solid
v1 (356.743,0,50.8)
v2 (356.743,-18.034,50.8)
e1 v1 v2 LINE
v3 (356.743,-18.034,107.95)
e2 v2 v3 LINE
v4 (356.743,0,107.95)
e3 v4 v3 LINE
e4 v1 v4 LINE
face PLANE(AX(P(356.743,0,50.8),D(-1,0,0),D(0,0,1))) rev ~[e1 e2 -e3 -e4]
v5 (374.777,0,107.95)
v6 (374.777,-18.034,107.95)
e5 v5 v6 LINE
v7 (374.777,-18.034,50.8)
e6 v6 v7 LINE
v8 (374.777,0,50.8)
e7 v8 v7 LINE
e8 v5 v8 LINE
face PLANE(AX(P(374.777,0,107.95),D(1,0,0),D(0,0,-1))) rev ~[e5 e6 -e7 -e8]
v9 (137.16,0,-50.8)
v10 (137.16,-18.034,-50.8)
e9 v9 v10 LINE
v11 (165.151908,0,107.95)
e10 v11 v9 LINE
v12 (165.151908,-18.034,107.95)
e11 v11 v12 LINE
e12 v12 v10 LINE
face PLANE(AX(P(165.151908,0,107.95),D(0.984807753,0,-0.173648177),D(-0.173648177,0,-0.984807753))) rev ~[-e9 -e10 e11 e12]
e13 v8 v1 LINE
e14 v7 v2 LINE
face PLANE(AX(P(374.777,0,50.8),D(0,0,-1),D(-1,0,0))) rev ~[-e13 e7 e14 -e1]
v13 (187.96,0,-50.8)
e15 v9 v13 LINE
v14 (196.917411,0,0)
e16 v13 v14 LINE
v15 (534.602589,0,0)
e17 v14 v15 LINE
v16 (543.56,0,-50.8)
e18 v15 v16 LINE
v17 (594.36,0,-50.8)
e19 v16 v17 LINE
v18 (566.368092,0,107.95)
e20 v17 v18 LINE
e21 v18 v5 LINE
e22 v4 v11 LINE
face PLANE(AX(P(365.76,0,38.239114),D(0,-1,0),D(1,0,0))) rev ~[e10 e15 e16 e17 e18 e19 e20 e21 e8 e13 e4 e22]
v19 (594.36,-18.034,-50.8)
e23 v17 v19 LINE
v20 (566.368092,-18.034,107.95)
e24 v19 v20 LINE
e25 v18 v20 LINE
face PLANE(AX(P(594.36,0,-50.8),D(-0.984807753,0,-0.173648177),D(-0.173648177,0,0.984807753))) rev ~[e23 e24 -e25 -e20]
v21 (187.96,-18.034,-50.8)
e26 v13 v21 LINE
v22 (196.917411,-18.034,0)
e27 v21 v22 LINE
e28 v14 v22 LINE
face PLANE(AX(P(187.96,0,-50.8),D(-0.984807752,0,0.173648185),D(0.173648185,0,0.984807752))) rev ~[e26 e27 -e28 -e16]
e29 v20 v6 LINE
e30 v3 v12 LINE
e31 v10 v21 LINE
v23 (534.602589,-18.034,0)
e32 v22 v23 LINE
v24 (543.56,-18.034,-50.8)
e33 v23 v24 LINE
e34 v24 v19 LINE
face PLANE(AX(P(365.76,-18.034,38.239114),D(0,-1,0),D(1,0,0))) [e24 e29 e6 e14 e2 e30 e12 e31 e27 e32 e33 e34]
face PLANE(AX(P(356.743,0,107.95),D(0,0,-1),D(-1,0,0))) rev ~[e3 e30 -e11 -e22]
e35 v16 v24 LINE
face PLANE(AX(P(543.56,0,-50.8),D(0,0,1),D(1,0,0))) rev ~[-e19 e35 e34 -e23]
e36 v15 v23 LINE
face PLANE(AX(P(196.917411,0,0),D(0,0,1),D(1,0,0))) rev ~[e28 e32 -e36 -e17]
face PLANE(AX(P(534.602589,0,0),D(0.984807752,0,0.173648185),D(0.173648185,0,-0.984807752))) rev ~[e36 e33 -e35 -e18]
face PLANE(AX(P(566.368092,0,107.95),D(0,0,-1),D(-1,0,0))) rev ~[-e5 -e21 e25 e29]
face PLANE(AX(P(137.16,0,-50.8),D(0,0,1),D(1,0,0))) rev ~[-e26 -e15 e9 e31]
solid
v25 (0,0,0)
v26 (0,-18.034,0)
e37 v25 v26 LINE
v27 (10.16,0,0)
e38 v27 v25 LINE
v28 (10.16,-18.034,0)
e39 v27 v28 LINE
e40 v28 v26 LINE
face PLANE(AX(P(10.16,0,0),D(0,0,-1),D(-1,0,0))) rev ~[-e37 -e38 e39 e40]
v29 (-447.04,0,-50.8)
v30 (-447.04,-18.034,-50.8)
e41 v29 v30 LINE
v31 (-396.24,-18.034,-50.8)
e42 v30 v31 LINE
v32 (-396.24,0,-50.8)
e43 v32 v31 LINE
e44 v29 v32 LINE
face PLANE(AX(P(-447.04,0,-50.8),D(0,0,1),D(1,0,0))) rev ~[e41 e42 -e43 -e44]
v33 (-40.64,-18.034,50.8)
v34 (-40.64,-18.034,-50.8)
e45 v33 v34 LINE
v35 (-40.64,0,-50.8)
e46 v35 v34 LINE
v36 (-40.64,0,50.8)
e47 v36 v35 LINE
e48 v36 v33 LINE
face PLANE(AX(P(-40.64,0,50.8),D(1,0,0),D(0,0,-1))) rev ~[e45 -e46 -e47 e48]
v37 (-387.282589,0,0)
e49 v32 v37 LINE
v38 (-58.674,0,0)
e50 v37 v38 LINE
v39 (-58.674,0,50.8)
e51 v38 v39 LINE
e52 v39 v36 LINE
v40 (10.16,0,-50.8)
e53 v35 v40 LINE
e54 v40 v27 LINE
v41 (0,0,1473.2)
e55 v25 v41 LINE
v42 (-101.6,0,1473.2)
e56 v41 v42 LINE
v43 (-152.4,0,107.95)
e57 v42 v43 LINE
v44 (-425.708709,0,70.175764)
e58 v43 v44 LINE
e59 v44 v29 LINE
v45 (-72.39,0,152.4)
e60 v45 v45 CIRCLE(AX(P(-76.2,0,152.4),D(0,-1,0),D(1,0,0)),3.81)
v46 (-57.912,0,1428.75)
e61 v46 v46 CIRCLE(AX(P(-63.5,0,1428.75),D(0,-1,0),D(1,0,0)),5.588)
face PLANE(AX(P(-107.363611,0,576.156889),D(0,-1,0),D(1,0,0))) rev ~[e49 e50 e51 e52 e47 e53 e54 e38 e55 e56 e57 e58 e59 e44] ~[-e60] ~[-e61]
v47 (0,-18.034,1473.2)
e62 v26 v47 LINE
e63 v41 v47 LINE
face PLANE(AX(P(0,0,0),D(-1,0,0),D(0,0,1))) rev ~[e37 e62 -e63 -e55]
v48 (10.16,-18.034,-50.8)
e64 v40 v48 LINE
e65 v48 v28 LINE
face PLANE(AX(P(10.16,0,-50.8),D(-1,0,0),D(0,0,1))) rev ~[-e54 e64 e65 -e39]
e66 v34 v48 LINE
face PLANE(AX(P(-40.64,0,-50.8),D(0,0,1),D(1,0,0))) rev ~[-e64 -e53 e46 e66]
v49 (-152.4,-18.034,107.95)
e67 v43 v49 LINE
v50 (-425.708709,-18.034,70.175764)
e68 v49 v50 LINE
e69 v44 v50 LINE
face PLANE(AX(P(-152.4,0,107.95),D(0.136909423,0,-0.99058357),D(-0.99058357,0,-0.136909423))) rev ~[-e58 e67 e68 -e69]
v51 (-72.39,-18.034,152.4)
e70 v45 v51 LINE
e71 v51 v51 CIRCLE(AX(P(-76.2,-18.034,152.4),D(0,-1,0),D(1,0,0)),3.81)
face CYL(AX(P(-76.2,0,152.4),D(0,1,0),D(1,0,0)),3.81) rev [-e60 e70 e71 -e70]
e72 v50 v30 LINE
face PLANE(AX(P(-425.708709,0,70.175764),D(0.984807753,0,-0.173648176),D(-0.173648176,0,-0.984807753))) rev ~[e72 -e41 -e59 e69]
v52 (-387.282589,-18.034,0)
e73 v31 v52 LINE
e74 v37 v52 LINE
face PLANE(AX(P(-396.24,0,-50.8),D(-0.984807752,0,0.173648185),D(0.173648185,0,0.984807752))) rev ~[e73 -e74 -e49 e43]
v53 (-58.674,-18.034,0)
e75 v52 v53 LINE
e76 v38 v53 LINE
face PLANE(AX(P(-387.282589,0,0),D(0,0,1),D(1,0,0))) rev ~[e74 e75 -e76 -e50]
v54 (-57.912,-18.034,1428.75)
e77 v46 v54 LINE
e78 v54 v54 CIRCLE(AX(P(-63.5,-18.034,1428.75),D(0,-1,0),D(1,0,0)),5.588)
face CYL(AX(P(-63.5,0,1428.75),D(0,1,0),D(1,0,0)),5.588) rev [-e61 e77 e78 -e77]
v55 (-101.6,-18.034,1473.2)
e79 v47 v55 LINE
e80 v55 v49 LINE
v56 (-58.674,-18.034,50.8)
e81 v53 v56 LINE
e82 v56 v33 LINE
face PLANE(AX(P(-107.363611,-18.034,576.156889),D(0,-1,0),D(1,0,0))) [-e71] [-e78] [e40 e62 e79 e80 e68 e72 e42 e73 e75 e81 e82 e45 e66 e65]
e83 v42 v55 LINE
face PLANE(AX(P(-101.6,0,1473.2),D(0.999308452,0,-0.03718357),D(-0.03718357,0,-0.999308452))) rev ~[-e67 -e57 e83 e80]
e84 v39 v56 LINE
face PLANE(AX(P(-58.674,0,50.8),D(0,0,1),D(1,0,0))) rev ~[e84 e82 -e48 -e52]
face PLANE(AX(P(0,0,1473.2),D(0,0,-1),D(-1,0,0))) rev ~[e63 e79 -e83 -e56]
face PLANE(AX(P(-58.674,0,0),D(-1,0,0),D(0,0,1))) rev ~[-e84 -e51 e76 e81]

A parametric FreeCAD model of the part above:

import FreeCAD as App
import Part
import Sketcher
from FreeCAD import Vector
Q = App.Units.Quantity

doc = App.newDocument("Part")
params = doc.addObject("Spreadsheet::Sheet", "Params")
for row, (alias, value) in enumerate([
    ("sketch1_diameter", "0.3 in"),
    ("sketch1_diameter2", "0.44 in"),
    ("sketch1_width", "4 in"),
    ("sketch1_height", "58 in"),
    ("sketch1_width2", "0.4 in"),
    ("pad1_length", "0.71 in"),
], start=1):
    params.set(f"A{row}", alias)
    params.set(f"B{row}", "=" + value)
    params.setAlias(f"B{row}", alias)

body = doc.addObject("PartDesign::Body", "Body")
body.AllowCompound = True

sketch1 = body.newObject("Sketcher::SketchObject", "Sketch")
sketch1.AttachmentSupport = (doc.getObject("XZ_Plane"), [""])
sketch1.MapMode = "FlatFace"
sketch1.addGeometry(Part.LineSegment(Vector(10.2, 0, 0), Vector(0, 0, 0)), False)
sketch1.addGeometry(Part.LineSegment(Vector(0, 0, 0), Vector(0, 1473.2, 0)), False)
sketch1.addGeometry(Part.LineSegment(Vector(0, 1473.2, 0), Vector(-101.6, 1473.2, 0)), False)
sketch1.addGeometry(Part.LineSegment(Vector(-101.6, 1473.2, 0), Vector(-152.4, 108, 0)), False)
sketch1.addGeometry(Part.LineSegment(Vector(-152.4, 108, 0), Vector(-425.7, 70.2, 0)), False)
sketch1.addGeometry(Part.LineSegment(Vector(-425.7, 70.2, 0), Vector(-447, -50.8, 0)), False)
sketch1.addGeometry(Part.LineSegment(Vector(-447, -50.8, 0), Vector(-396.2, -50.8, 0)), False)
sketch1.addGeometry(Part.LineSegment(Vector(-396.2, -50.8, 0), Vector(-387.3, 0, 0)), False)
sketch1.addGeometry(Part.LineSegment(Vector(-387.3, 0, 0), Vector(-58.7, 0, 0)), False)
sketch1.addGeometry(Part.LineSegment(Vector(-58.7, 0, 0), Vector(-58.7, 50.8, 0)), False)
sketch1.addGeometry(Part.LineSegment(Vector(-58.7, 50.8, 0), Vector(-40.6, 50.8, 0)), False)
sketch1.addGeometry(Part.LineSegment(Vector(-40.6, 50.8, 0), Vector(-40.6, -50.8, 0)), False)
sketch1.addGeometry(Part.LineSegment(Vector(-40.6, -50.8, 0), Vector(10.2, -50.8, 0)), False)
sketch1.addGeometry(Part.LineSegment(Vector(10.2, -50.8, 0), Vector(10.2, 0, 0)), False)
sketch1.addGeometry(Part.Circle(Vector(-76.2, 152.4, 0), Vector(0, 0, 1), 3.8), False)
sketch1.addGeometry(Part.Circle(Vector(-63.5, 1428.8, 0), Vector(0, 0, 1), 5.6), False)
sketch1.addGeometry(Part.LineSegment(Vector(165.2, 108, 0), Vector(137.2, -50.8, 0)), False)
sketch1.addGeometry(Part.LineSegment(Vector(137.2, -50.8, 0), Vector(188, -50.8, 0)), False)
sketch1.addGeometry(Part.LineSegment(Vector(188, -50.8, 0), Vector(196.9, 0, 0)), False)
sketch1.addGeometry(Part.LineSegment(Vector(196.9, 0, 0), Vector(534.6, 0, 0)), False)
sketch1.addGeometry(Part.LineSegment(Vector(534.6, 0, 0), Vector(543.6, -50.8, 0)), False)
sketch1.addGeometry(Part.LineSegment(Vector(543.6, -50.8, 0), Vector(594.4, -50.8, 0)), False)
sketch1.addGeometry(Part.LineSegment(Vector(594.4, -50.8, 0), Vector(566.4, 108, 0)), False)
sketch1.addGeometry(Part.LineSegment(Vector(566.4, 108, 0), Vector(374.8, 108, 0)), False)
sketch1.addGeometry(Part.LineSegment(Vector(374.8, 108, 0), Vector(374.8, 50.8, 0)), False)
sketch1.addGeometry(Part.LineSegment(Vector(374.8, 50.8, 0), Vector(356.7, 50.8, 0)), False)
sketch1.addGeometry(Part.LineSegment(Vector(356.7, 50.8, 0), Vector(356.7, 108, 0)), False)
sketch1.addGeometry(Part.LineSegment(Vector(356.7, 108, 0), Vector(165.2, 108, 0)), False)
sketch1.addConstraint(Sketcher.Constraint("Coincident", 0, 2, 1, 1))
sketch1.addConstraint(Sketcher.Constraint("Coincident", 1, 2, 2, 1))
sketch1.addConstraint(Sketcher.Constraint("Coincident", 2, 2, 3, 1))
sketch1.addConstraint(Sketcher.Constraint("Coincident", 3, 2, 4, 1))
sketch1.addConstraint(Sketcher.Constraint("Coincident", 4, 2, 5, 1))
sketch1.addConstraint(Sketcher.Constraint("Coincident", 5, 2, 6, 1))
sketch1.addConstraint(Sketcher.Constraint("Coincident", 6, 2, 7, 1))
sketch1.addConstraint(Sketcher.Constraint("Coincident", 7, 2, 8, 1))
sketch1.addConstraint(Sketcher.Constraint("Coincident", 8, 2, 9, 1))
sketch1.addConstraint(Sketcher.Constraint("Coincident", 9, 2, 10, 1))
sketch1.addConstraint(Sketcher.Constraint("Coincident", 10, 2, 11, 1))
sketch1.addConstraint(Sketcher.Constraint("Coincident", 11, 2, 12, 1))
sketch1.addConstraint(Sketcher.Constraint("Coincident", 12, 2, 13, 1))
sketch1.addConstraint(Sketcher.Constraint("Coincident", 13, 2, 0, 1))
sketch1.addConstraint(Sketcher.Constraint("Coincident", 16, 2, 17, 1))
sketch1.addConstraint(Sketcher.Constraint("Coincident", 17, 2, 18, 1))
sketch1.addConstraint(Sketcher.Constraint("Coincident", 18, 2, 19, 1))
sketch1.addConstraint(Sketcher.Constraint("Coincident", 19, 2, 20, 1))
sketch1.addConstraint(Sketcher.Constraint("Coincident", 20, 2, 21, 1))
sketch1.addConstraint(Sketcher.Constraint("Coincident", 21, 2, 22, 1))
sketch1.addConstraint(Sketcher.Constraint("Coincident", 22, 2, 23, 1))
sketch1.addConstraint(Sketcher.Constraint("Coincident", 23, 2, 24, 1))
sketch1.addConstraint(Sketcher.Constraint("Coincident", 24, 2, 25, 1))
sketch1.addConstraint(Sketcher.Constraint("Coincident", 25, 2, 26, 1))
sketch1.addConstraint(Sketcher.Constraint("Coincident", 26, 2, 27, 1))
sketch1.addConstraint(Sketcher.Constraint("Coincident", 27, 2, 16, 1))
sketch1.addConstraint(Sketcher.Constraint("Horizontal", 0))
sketch1.addConstraint(Sketcher.Constraint("Vertical", 1))
sketch1.addConstraint(Sketcher.Constraint("Horizontal", 2))
sketch1.addConstraint(Sketcher.Constraint("Horizontal", 6))
sketch1.addConstraint(Sketcher.Constraint("Horizontal", 8))
sketch1.addConstraint(Sketcher.Constraint("Vertical", 9))
sketch1.addConstraint(Sketcher.Constraint("Horizontal", 10))
sketch1.addConstraint(Sketcher.Constraint("Vertical", 11))
sketch1.addConstraint(Sketcher.Constraint("Horizontal", 12))
sketch1.addConstraint(Sketcher.Constraint("Vertical", 13))
sketch1.addConstraint(Sketcher.Constraint("Horizontal", 17))
sketch1.addConstraint(Sketcher.Constraint("Horizontal", 19))
sketch1.addConstraint(Sketcher.Constraint("Horizontal", 21))
sketch1.addConstraint(Sketcher.Constraint("Horizontal", 23))
sketch1.addConstraint(Sketcher.Constraint("Vertical", 24))
sketch1.addConstraint(Sketcher.Constraint("Horizontal", 25))
sketch1.addConstraint(Sketcher.Constraint("Vertical", 26))
sketch1.addConstraint(Sketcher.Constraint("Horizontal", 27))
sketch1.addConstraint(Sketcher.Constraint("Coincident", 0, 2, -1, 1))
sketch1.addConstraint(Sketcher.Constraint("PointOnObject", 7, 2, -1))
sketch1.addConstraint(Sketcher.Constraint("PointOnObject", 18, 2, -1))
sketch1.addConstraint(Sketcher.Constraint("Parallel", 5, 7))
sketch1.addConstraint(Sketcher.Constraint("Parallel", 7, 16))
sketch1.addConstraint(Sketcher.Constraint("Parallel", 16, 18))
sketch1.addConstraint(Sketcher.Constraint("Parallel", 20, 22))
sketch1.addConstraint(Sketcher.Constraint("Horizontal", 6, 2, 11, 2))
sketch1.addConstraint(Sketcher.Constraint("Horizontal", 12, 2, 16, 2))
sketch1.addConstraint(Sketcher.Constraint("Horizontal", 17, 2, 20, 2))
sketch1.addConstraint(Sketcher.Constraint("Horizontal", 3, 2, 22, 2))
sketch1.addConstraint(Sketcher.Constraint("Horizontal", 10, 2, 24, 2))
sketch1.addConstraint(Sketcher.Constraint("Horizontal", 23, 2, 26, 2))
sketch1.addConstraint(Sketcher.Constraint("Equal", 6, 12))
sketch1.addConstraint(Sketcher.Constraint("Equal", 12, 17))
sketch1.addConstraint(Sketcher.Constraint("Equal", 17, 21))
sketch1.addConstraint(Sketcher.Constraint("Equal", 10, 25))
sketch1.addConstraint(Sketcher.Constraint("Equal", 23, 27))
sketch1.addConstraint(Sketcher.Constraint("Equal", 21, 9))
sketch1.addConstraint(Sketcher.Constraint("Equal", 2, 11))
sketch1.addConstraint(Sketcher.Constraint("Equal", 9, 13))
sketch1.addConstraint(Sketcher.Constraint("Equal", 18, 20))
sketch1.addConstraint(Sketcher.Constraint("Diameter", 14, Q("0.3 in")))
sketch1.addConstraint(Sketcher.Constraint("Diameter", 15, Q("0.44 in")))
sketch1.addConstraint(Sketcher.Constraint("DistanceX", 2, 2, 2, 1, Q("4 in")))
sketch1.addConstraint(Sketcher.Constraint("DistanceY", 1, 1, 1, 2, Q("58 in")))
sketch1.addConstraint(Sketcher.Constraint("DistanceX", 0, 2, 0, 1, Q("0.4 in")))
sketch1.addConstraint(Sketcher.Constraint("DistanceX", 14, 3, -1, 1, Q("3 in")))
sketch1.addConstraint(Sketcher.Constraint("DistanceY", -1, 1, 14, 3, Q("6 in")))
sketch1.addConstraint(Sketcher.Constraint("DistanceX", 3, 2, -1, 1, Q("6 in")))
sketch1.addConstraint(Sketcher.Constraint("Angle", 5, Q("-100 deg")))
sketch1.addConstraint(Sketcher.Constraint("DistanceY", 3, 2, 15, 3, Q("52 in")))
sketch1.addConstraint(Sketcher.Constraint("DistanceX", 12, 2, 16, 2, Q("5 in")))
sketch1.addConstraint(Sketcher.Constraint("DistanceX", 17, 2, 20, 2, Q("14 in")))
sketch1.addConstraint(Sketcher.Constraint("DistanceX", 10, 1, 10, 2, Q("0.71 in")))
sketch1.addConstraint(Sketcher.Constraint("DistanceY", 24, 2, 24, 1, Q("2.25 in")))
sketch1.addConstraint(Sketcher.Constraint("DistanceX", 15, 3, -1, 1, Q("2.5 in")))
sketch1.addConstraint(Sketcher.Constraint("DistanceX", 5, 2, -1, 1, Q("17.6 in")))
sketch1.addConstraint(Sketcher.Constraint("Distance", 5, Q("122.84201 mm")))
sketch1.setExpression("Constraints[66]", "Params.sketch1_diameter")
sketch1.setExpression("Constraints[67]", "Params.sketch1_diameter2")
sketch1.setExpression("Constraints[68]", "Params.sketch1_width")
sketch1.setExpression("Constraints[69]", "Params.sketch1_height")
sketch1.setExpression("Constraints[70]", "Params.sketch1_width2")
pad1 = body.newObject("PartDesign::Pad", "Pad")
pad1.Profile = sketch1
pad1.setExpression("Length", "Params.pad1_length")

doc.recompute()
